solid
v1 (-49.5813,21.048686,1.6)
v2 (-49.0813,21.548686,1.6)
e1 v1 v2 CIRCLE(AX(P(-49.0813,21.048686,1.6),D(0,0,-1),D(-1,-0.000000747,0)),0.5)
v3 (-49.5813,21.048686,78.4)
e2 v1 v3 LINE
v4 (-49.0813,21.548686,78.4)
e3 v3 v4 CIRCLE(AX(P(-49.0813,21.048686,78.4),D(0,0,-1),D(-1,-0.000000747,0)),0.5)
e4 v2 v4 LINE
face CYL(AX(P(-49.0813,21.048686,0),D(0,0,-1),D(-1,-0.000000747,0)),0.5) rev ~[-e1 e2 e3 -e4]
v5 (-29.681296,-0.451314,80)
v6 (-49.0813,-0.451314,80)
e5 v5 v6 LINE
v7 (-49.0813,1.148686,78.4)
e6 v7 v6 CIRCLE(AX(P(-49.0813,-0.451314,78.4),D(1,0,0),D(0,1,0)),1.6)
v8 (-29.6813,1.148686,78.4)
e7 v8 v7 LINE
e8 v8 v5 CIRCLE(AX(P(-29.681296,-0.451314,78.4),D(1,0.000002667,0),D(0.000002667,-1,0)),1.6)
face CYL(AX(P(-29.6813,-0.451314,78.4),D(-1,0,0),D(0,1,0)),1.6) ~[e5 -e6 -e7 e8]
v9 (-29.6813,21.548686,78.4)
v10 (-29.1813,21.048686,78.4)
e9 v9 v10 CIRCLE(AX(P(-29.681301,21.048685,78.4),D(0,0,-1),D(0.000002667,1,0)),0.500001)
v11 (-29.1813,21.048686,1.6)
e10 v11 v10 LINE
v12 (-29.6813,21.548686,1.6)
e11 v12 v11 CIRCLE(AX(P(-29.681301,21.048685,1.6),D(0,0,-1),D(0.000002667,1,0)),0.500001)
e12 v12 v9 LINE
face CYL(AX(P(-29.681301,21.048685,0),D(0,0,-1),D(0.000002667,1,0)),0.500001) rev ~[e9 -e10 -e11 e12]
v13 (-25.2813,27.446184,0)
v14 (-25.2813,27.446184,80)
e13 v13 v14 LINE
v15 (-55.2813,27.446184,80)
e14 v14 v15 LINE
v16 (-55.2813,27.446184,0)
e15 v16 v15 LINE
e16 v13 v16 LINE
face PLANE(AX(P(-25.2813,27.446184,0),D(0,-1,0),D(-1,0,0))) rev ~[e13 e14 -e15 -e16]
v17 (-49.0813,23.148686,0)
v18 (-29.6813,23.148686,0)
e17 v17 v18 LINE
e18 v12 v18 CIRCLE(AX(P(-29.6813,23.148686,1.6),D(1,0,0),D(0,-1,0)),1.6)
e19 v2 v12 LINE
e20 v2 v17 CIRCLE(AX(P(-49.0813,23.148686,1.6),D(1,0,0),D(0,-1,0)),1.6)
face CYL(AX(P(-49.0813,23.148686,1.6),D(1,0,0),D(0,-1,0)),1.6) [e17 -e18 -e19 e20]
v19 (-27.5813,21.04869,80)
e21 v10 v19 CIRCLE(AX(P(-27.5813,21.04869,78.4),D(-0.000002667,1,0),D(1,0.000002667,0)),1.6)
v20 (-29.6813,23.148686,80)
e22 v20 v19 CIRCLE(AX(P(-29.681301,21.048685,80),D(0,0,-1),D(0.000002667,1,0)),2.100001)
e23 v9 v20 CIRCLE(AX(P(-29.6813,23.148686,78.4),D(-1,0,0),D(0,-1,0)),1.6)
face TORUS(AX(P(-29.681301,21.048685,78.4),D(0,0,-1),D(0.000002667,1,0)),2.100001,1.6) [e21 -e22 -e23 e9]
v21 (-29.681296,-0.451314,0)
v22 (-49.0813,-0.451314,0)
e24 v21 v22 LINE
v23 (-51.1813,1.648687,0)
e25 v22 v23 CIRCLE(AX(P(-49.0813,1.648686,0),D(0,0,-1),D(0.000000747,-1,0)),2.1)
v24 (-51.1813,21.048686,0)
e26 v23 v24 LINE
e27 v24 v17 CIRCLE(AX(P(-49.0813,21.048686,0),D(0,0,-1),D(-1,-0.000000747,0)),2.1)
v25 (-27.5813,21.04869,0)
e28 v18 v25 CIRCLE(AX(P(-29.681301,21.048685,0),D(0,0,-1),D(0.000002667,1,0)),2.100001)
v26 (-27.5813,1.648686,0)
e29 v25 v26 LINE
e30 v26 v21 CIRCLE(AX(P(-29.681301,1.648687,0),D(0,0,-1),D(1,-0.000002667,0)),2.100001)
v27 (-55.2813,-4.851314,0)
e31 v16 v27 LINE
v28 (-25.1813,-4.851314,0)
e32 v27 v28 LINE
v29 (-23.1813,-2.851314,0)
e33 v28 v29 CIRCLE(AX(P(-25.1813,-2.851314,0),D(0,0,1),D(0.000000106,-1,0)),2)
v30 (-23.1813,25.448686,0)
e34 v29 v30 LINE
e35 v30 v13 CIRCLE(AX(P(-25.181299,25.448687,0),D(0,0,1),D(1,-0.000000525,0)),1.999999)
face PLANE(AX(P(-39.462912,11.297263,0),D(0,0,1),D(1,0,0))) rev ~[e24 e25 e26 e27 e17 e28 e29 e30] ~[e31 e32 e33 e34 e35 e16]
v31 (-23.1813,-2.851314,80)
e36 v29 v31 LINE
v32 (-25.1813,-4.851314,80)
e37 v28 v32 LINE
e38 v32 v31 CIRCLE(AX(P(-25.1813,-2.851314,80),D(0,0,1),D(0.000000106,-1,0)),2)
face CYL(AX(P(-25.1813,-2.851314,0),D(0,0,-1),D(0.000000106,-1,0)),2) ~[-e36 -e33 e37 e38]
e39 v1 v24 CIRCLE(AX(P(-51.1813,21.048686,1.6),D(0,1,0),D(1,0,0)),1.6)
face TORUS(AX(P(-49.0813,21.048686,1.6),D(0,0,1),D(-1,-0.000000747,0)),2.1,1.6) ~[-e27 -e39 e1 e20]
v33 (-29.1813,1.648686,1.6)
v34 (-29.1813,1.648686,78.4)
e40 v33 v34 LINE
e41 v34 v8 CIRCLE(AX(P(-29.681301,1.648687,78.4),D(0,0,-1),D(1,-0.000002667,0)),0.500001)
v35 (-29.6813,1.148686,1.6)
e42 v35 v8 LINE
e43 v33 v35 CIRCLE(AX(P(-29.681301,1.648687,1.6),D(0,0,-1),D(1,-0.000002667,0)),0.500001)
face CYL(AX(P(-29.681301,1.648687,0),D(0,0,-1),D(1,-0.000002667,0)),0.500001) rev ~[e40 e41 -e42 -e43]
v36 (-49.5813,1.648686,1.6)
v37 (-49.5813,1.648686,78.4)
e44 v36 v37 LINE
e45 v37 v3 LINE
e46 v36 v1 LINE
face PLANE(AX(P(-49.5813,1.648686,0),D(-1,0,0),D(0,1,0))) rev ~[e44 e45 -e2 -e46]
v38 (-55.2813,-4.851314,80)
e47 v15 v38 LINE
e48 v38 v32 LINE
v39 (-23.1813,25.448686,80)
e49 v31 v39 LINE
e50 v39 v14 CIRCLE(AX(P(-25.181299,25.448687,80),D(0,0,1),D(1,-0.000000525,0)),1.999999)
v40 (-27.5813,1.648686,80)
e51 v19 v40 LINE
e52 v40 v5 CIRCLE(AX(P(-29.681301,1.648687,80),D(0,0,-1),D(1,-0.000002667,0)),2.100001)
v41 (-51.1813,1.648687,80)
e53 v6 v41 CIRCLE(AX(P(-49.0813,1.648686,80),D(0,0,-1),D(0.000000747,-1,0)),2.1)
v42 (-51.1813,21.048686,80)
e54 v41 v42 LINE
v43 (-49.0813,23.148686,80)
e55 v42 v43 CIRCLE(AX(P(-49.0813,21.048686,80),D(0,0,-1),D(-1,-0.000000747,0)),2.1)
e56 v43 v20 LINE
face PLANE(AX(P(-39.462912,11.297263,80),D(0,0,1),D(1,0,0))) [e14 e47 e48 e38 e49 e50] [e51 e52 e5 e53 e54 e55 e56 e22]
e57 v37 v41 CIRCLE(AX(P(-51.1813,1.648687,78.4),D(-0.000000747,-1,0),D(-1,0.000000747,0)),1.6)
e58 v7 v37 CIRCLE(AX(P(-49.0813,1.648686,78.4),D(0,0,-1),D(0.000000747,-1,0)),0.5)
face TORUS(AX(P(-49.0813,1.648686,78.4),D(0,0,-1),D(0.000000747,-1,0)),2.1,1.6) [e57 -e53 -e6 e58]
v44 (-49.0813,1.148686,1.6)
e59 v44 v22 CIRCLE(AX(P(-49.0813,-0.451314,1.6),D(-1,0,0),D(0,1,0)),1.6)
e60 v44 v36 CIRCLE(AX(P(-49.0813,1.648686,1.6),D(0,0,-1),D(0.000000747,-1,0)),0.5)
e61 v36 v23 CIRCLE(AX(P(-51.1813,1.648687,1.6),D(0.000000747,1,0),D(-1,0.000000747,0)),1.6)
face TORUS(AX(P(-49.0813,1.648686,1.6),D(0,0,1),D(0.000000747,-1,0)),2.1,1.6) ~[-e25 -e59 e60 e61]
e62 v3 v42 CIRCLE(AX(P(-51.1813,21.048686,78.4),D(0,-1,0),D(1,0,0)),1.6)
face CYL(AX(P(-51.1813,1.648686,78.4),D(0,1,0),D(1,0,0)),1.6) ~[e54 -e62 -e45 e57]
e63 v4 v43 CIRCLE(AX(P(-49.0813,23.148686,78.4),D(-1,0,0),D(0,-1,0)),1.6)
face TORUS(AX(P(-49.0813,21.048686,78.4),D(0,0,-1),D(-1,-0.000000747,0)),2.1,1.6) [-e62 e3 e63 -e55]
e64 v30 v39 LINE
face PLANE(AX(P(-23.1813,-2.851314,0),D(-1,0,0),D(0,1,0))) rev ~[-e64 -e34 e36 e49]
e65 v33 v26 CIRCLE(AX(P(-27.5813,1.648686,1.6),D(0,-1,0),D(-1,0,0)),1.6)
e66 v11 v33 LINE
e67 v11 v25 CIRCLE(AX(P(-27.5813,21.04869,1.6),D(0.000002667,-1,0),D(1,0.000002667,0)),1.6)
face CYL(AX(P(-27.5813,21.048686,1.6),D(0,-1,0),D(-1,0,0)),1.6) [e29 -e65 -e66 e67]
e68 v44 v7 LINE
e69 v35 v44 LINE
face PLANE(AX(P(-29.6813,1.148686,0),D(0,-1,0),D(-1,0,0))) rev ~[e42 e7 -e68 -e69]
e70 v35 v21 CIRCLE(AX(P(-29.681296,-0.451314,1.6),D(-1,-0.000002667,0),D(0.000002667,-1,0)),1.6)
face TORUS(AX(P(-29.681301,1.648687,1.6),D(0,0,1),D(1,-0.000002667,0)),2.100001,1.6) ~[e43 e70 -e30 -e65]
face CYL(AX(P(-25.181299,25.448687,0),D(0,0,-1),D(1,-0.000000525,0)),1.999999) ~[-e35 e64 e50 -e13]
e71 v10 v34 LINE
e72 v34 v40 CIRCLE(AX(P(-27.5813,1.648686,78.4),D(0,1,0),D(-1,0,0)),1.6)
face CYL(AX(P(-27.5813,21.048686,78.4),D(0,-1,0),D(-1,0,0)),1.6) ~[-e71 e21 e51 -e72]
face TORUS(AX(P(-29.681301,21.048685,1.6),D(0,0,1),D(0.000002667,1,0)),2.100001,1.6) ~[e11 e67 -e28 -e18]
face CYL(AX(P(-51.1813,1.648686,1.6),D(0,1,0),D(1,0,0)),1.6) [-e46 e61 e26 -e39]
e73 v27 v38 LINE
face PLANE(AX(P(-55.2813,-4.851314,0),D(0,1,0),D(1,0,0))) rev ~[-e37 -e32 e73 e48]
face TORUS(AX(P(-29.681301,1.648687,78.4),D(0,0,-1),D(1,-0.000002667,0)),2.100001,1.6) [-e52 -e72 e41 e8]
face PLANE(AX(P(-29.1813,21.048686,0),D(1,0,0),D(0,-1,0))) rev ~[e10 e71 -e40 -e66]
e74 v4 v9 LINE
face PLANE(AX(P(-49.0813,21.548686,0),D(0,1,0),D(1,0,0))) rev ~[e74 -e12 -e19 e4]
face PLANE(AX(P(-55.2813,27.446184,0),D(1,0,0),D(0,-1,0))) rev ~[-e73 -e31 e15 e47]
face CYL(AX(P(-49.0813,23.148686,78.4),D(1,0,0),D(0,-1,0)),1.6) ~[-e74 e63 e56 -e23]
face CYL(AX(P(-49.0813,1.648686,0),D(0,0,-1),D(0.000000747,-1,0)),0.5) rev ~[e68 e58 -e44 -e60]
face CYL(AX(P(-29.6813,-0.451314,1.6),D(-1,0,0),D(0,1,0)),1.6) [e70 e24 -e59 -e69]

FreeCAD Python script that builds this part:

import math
import FreeCAD as App
import Part
import Sketcher


def edges_at(feature, points):
    """Names of the edges that pass closest to the given points."""
    edges = feature.Shape.Edges
    near = lambda p: min(range(len(edges)), key=lambda i: edges[i].distToShape(Part.Vertex(*p))[0])
    return sorted({f"Edge{near(p) + 1}" for p in points})

doc = App.newDocument("Part")
body = doc.addObject("PartDesign::Body", "Body")

# Sketch on XY plane
sketch1 = body.newObject("Sketcher::SketchObject", "Sketch")
sketch1.AttachmentSupport = (doc.getObject("XY_Plane"), [""])
sketch1.MapMode = "FlatFace"
sketch1.addGeometry([
    Part.LineSegment(App.Vector(-23.1813, -2.851314, 0), App.Vector(-23.1813, 25.448686, 0)),  # 0
    Part.ArcOfCircle(Part.Circle(App.Vector(-25.181299, 25.448687, 0), App.Vector(0, 0, 1), 1.999999), math.radians(-0.00003), math.radians(92.866027)),  # 1
    Part.LineSegment(App.Vector(-25.2813, 27.446184, 0), App.Vector(-55.2813, 27.446184, 0)),  # 2
    Part.LineSegment(App.Vector(-55.2813, 27.446184, 0), App.Vector(-55.2813, -4.851314, 0)),  # 3
    Part.LineSegment(App.Vector(-55.2813, -4.851314, 0), App.Vector(-25.1813, -4.851314, 0)),  # 4
    Part.ArcOfCircle(Part.Circle(App.Vector(-25.1813, -2.851314, 0), App.Vector(0, 0, 1), 2), math.radians(-89.999994), math.radians(-0.000006)),  # 5
    Part.LineSegment(App.Vector(-49.5813, 1.648686, 0), App.Vector(-49.5813, 21.048686, 0)),  # 6
    Part.ArcOfCircle(Part.Circle(App.Vector(-49.0813, 21.048686, 0), App.Vector(0, 0, 1), 0.5), math.radians(89.999957), math.radians(180.000043)),  # 7
    Part.LineSegment(App.Vector(-49.0813, 21.548686, 0), App.Vector(-29.6813, 21.548686, 0)),  # 8
    Part.ArcOfCircle(Part.Circle(App.Vector(-29.681301, 21.048685, 0), App.Vector(0, 0, 1), 0.500001), math.radians(0.000153), math.radians(89.999847)),  # 9
    Part.LineSegment(App.Vector(-29.1813, 21.048686, 0), App.Vector(-29.1813, 1.648686, 0)),  # 10
    Part.ArcOfCircle(Part.Circle(App.Vector(-29.681301, 1.648687, 0), App.Vector(0, 0, 1), 0.500001), math.radians(-89.999847), math.radians(-0.000153)),  # 11
    Part.LineSegment(App.Vector(-29.6813, 1.148686, 0), App.Vector(-49.0813, 1.148686, 0)),  # 12
    Part.ArcOfCircle(Part.Circle(App.Vector(-49.0813, 1.648686, 0), App.Vector(0, 0, 1), 0.5), math.radians(179.999957), math.radians(270.000043)),  # 13
], False)
sketch1.addConstraint([
    Sketcher.Constraint("Tangent", 0, 2, 1, 1),
    Sketcher.Constraint("Coincident", 1, 2, 2, 1),
    Sketcher.Constraint("Coincident", 2, 2, 3, 1),
    Sketcher.Constraint("Coincident", 3, 2, 4, 1),
    Sketcher.Constraint("Tangent", 4, 2, 5, 1),
    Sketcher.Constraint("Tangent", 5, 2, 0, 1),
    Sketcher.Constraint("Tangent", 6, 2, 7, 2),
    Sketcher.Constraint("Tangent", 7, 1, 8, 1),
    Sketcher.Constraint("Coincident", 8, 2, 9, 2),
    Sketcher.Constraint("Coincident", 9, 1, 10, 1),
    Sketcher.Constraint("Coincident", 10, 2, 11, 2),
    Sketcher.Constraint("Coincident", 11, 1, 12, 1),
    Sketcher.Constraint("Tangent", 12, 2, 13, 2),
    Sketcher.Constraint("Tangent", 13, 1, 6, 1),
    Sketcher.Constraint("Vertical", 0),
    Sketcher.Constraint("Horizontal", 2),
    Sketcher.Constraint("Vertical", 3),
    Sketcher.Constraint("Horizontal", 4),
    Sketcher.Constraint("Vertical", 6),
    Sketcher.Constraint("Horizontal", 8),
    Sketcher.Constraint("Vertical", 10),
    Sketcher.Constraint("Horizontal", 12),
    Sketcher.Constraint("Equal", 1, 5),
    Sketcher.Constraint("Equal", 7, 9),
    Sketcher.Constraint("Equal", 9, 11),
    Sketcher.Constraint("Equal", 11, 13),
    Sketcher.Constraint("Horizontal", 6, 2, 9, 1),
    Sketcher.Constraint("Horizontal", 13, 3, 10, 2),
    Sketcher.Constraint("Vertical", 11, 3, 8, 2),
    Sketcher.Constraint("Vertical", 8, 2, 11, 1),
    Sketcher.Constraint("Equal", 12, 6),
    Sketcher.Constraint("Radius", 1, 1.999999),
    Sketcher.Constraint("Radius", 7, 0.5),
    Sketcher.Constraint("DistanceX", 2, 2, 2, 1, 30.0),
    Sketcher.Constraint("DistanceX", 4, 1, 4, 2, 30.1),
    Sketcher.Constraint("DistanceX", 8, 1, 8, 2, 19.4),
    Sketcher.Constraint("DistanceY", 0, 1, 0, 2, 28.3),
    Sketcher.Constraint("DistanceX", 9, 1, 1, 3, 4.000001),
    Sketcher.Constraint("DistanceY", 5, 3, 11, 1, 4.0),
    Sketcher.Constraint("DistanceX", 1, 3, -1, 1, 25.181299),
    Sketcher.Constraint("DistanceY", -1, 1, 1, 3, 25.448687),
])
pad1 = body.newObject("PartDesign::Pad", "Pad")
pad1.Profile = sketch1
pad1.Length = 80
doc.recompute()

fillet = body.newObject("PartDesign::Fillet", "Fillet")
fillet.Base = (pad1, edges_at(pad1, [(-39.381, 21.549, 0), (-39.381, 21.549, 80)]))
fillet.Radius = 1.6

doc.recompute()
